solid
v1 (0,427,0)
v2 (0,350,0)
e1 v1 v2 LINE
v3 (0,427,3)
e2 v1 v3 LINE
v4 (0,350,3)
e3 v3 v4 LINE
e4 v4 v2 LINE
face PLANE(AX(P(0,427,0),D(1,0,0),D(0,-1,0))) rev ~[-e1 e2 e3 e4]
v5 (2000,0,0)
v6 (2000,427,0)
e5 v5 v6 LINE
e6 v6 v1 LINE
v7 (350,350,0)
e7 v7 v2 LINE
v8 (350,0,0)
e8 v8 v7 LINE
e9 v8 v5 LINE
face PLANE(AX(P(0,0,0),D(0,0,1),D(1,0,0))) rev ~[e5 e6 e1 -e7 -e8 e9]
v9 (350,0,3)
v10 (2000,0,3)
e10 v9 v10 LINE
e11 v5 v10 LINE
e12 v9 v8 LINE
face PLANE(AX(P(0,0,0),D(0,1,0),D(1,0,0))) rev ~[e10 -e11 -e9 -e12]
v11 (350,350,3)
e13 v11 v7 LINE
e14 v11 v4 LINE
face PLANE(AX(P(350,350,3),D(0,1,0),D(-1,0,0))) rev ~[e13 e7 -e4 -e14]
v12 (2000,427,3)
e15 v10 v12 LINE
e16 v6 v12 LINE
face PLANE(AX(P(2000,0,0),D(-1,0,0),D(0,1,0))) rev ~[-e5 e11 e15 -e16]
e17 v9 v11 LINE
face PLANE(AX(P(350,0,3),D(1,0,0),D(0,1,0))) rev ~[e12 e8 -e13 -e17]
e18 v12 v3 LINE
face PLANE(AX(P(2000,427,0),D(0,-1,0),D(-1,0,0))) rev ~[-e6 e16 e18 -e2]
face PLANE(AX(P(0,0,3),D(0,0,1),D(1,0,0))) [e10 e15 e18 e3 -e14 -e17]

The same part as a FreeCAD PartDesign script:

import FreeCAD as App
import Part
import Sketcher

V = App.Vector
Q = App.Units.Quantity

doc = App.newDocument("Part")
body = doc.addObject("PartDesign::Body", "Body")

# Sketch on XY plane
sketch1 = body.newObject("Sketcher::SketchObject", "Sketch")
sketch1.AttachmentSupport = (doc.getObject("XY_Plane"), [""])
sketch1.MapMode = "FlatFace"
sketch1.addGeometry(Part.LineSegment(V(0, 427, 0), V(0, 0, 0)), False)
sketch1.addGeometry(Part.LineSegment(V(0, 0, 0), V(2000, 0, 0)), False)
sketch1.addGeometry(Part.LineSegment(V(2000, 0, 0), V(2000, 427, 0)), False)
sketch1.addGeometry(Part.LineSegment(V(2000, 427, 0), V(0, 427, 0)), False)
sketch1.addConstraint(Sketcher.Constraint("Coincident", 0, 2, 1, 1))
sketch1.addConstraint(Sketcher.Constraint("Coincident", 1, 2, 2, 1))
sketch1.addConstraint(Sketcher.Constraint("Coincident", 2, 2, 3, 1))
sketch1.addConstraint(Sketcher.Constraint("Coincident", 3, 2, 0, 1))
sketch1.addConstraint(Sketcher.Constraint("Vertical", 0))
sketch1.addConstraint(Sketcher.Constraint("Horizontal", 1))
sketch1.addConstraint(Sketcher.Constraint("Vertical", 2))
sketch1.addConstraint(Sketcher.Constraint("Horizontal", 3))
sketch1.addConstraint(Sketcher.Constraint("Coincident", 0, 2, -1, 1))
sketch1.addConstraint(Sketcher.Constraint("DistanceX", 1, 1, 1, 2, Q("2000 mm")))
sketch1.addConstraint(Sketcher.Constraint("DistanceY", 0, 2, 0, 1, Q("427 mm")))
pad1 = body.newObject("PartDesign::Pad", "Pad")
pad1.Profile = sketch1
pad1.Length = 3

# Sketch on XY plane
sketch2 = body.newObject("Sketcher::SketchObject", "Sketch001")
sketch2.AttachmentSupport = (doc.getObject("XY_Plane"), [""])
sketch2.MapMode = "FlatFace"
sketch2.AttachmentOffset = App.Placement(V(0, 0, 3), App.Rotation())
sketch2.addGeometry(Part.LineSegment(V(350, 350, 0), V(0, 350, 0)), False)
sketch2.addGeometry(Part.LineSegment(V(0, 350, 0), V(0, 0, 0)), False)
sketch2.addGeometry(Part.LineSegment(V(0, 0, 0), V(350, 0, 0)), False)
sketch2.addGeometry(Part.LineSegment(V(350, 0, 0), V(350, 350, 0)), False)
sketch2.addConstraint(Sketcher.Constraint("Coincident", 0, 2, 1, 1))
sketch2.addConstraint(Sketcher.Constraint("Coincident", 1, 2, 2, 1))
sketch2.addConstraint(Sketcher.Constraint("Coincident", 2, 2, 3, 1))
sketch2.addConstraint(Sketcher.Constraint("Coincident", 3, 2, 0, 1))
sketch2.addConstraint(Sketcher.Constraint("Horizontal", 0))
sketch2.addConstraint(Sketcher.Constraint("Vertical", 1))
sketch2.addConstraint(Sketcher.Constraint("Horizontal", 2))
sketch2.addConstraint(Sketcher.Constraint("Vertical", 3))
sketch2.addConstraint(Sketcher.Constraint("Coincident", 1, 2, -1, 1))
sketch2.addConstraint(Sketcher.Constraint("Equal", 2, 1))
sketch2.addConstraint(Sketcher.Constraint("DistanceX", 0, 2, 0, 1, Q("350 mm")))
pocket1 = body.newObject("PartDesign::Pocket", "Pocket")
pocket1.Profile = sketch2
pocket1.Length = 10

doc.recompute()
